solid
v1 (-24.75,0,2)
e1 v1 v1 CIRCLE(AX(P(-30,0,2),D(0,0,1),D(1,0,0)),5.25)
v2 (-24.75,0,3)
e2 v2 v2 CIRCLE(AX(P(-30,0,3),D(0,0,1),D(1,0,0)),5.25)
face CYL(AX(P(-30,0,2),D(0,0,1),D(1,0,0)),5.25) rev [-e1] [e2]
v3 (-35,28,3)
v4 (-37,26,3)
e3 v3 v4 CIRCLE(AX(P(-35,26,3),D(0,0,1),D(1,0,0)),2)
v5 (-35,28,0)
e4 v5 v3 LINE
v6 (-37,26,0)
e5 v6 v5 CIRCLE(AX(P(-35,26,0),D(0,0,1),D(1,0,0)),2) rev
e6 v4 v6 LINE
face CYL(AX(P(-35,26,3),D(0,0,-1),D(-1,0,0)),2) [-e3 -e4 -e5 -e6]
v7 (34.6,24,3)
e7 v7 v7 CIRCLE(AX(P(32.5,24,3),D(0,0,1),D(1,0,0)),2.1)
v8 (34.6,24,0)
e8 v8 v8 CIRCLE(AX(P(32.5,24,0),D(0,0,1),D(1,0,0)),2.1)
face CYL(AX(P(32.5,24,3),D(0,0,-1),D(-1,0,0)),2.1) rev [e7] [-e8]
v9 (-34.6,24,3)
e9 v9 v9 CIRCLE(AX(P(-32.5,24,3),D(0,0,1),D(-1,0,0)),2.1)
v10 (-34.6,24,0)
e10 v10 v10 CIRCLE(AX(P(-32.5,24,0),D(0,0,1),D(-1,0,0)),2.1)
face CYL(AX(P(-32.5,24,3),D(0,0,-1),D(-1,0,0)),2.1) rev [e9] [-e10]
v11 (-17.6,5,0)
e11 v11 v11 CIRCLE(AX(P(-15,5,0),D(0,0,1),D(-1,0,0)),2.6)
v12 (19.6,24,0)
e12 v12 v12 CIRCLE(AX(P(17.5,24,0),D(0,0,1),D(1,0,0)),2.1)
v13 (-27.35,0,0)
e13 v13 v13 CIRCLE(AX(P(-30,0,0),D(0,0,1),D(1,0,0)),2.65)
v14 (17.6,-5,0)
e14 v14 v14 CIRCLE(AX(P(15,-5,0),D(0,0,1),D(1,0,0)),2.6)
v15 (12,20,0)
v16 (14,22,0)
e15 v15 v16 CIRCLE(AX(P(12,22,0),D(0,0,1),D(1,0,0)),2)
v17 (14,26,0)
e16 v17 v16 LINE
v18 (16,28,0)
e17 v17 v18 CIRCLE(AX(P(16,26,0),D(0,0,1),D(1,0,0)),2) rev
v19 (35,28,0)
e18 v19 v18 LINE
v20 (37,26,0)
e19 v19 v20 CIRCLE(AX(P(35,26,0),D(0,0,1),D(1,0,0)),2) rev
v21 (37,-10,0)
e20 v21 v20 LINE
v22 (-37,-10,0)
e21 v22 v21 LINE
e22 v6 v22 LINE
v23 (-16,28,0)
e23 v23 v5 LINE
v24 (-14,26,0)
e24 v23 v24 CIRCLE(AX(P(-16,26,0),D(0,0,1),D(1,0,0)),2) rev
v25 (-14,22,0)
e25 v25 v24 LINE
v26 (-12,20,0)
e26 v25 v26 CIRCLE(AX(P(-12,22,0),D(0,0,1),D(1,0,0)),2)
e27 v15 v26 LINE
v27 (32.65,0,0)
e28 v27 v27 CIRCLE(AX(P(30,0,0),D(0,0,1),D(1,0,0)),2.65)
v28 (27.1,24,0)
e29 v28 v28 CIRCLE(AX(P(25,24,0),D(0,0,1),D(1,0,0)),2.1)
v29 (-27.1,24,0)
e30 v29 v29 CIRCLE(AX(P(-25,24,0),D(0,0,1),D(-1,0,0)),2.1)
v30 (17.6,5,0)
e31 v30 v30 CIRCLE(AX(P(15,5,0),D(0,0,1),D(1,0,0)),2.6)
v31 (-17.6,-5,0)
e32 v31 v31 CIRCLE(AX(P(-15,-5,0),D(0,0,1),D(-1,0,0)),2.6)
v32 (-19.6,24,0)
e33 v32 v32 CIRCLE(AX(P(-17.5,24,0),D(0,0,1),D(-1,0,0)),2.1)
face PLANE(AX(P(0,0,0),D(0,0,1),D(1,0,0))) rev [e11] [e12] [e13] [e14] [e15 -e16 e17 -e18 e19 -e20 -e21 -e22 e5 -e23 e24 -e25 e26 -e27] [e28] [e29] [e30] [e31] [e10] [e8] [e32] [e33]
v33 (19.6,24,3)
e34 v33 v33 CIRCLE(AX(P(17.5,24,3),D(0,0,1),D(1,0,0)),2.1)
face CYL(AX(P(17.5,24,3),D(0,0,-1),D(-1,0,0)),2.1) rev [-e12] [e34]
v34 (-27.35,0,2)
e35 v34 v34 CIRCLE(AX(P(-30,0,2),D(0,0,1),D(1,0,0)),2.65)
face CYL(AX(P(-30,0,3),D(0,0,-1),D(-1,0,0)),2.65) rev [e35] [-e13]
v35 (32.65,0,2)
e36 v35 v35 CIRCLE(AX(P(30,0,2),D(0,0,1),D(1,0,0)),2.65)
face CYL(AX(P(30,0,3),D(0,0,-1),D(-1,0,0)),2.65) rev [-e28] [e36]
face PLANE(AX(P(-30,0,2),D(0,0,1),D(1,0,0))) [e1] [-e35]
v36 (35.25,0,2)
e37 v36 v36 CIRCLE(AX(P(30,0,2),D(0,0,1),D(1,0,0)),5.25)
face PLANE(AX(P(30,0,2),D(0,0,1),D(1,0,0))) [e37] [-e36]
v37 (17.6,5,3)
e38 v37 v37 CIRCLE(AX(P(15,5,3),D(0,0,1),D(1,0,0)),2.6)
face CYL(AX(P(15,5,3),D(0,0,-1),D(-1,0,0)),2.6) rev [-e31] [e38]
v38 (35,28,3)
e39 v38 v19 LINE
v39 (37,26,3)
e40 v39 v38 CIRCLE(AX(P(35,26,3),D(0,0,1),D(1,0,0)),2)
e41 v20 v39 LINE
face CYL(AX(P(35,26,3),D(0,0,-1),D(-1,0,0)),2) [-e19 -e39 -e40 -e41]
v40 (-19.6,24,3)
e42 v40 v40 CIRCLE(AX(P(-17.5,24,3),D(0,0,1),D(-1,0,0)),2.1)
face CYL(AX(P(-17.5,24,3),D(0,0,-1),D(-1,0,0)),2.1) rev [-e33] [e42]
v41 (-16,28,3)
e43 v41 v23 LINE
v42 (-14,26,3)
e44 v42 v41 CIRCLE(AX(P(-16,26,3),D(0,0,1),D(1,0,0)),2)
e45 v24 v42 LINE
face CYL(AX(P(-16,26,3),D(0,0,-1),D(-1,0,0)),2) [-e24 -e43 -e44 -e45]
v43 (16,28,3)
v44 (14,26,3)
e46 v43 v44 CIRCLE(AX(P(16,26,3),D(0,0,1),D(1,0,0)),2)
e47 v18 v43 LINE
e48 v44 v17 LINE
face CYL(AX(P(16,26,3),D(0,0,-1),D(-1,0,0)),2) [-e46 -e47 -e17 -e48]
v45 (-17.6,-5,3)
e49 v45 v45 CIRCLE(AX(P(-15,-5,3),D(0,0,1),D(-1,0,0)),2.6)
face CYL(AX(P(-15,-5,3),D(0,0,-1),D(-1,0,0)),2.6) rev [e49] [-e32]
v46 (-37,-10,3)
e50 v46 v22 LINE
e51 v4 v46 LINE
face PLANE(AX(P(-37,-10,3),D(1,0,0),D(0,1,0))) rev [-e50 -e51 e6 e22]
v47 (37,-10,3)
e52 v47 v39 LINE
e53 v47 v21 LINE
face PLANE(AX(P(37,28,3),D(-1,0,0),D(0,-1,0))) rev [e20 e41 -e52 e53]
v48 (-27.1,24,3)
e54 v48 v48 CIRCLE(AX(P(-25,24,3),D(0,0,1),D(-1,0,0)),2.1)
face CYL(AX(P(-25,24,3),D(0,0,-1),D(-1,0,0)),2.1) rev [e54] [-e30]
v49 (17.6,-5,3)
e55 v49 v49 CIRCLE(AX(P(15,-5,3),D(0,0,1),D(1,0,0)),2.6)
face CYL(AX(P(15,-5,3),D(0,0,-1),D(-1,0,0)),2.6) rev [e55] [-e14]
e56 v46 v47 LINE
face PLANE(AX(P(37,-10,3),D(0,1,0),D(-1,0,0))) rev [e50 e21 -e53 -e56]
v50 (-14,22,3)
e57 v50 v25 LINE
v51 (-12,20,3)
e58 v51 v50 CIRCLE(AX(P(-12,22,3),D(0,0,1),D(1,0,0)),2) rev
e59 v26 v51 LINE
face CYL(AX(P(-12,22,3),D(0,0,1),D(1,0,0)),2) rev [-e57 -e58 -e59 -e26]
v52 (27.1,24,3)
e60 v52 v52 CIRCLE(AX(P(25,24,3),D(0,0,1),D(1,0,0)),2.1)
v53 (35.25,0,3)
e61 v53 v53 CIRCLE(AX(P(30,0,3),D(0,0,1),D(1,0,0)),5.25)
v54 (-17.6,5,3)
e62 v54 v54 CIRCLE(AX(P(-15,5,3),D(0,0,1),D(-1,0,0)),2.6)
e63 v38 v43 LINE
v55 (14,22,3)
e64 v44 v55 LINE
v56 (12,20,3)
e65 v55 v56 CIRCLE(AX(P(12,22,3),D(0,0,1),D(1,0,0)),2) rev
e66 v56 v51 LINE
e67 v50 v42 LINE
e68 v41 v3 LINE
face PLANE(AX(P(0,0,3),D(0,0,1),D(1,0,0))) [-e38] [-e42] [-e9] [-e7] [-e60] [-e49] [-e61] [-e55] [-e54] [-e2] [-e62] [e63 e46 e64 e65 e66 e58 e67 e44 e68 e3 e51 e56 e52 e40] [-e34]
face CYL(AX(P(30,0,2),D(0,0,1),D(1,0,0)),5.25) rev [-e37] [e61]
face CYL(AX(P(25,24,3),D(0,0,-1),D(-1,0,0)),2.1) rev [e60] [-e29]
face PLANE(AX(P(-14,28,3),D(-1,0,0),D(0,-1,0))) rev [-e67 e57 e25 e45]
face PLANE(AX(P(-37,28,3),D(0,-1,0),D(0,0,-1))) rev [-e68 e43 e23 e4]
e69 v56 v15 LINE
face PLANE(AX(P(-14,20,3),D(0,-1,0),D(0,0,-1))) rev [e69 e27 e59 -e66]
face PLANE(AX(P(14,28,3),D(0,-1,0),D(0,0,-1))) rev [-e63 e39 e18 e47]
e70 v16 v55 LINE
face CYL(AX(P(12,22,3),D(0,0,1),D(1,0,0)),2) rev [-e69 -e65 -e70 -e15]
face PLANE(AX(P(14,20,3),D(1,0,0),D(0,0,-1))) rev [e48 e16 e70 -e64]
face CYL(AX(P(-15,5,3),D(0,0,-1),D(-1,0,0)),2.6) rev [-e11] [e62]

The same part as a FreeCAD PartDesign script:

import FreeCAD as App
import Part
import Sketcher


def edges_at(feature, points):
    """Names of the edges that pass closest to the given points."""
    edges = feature.Shape.Edges
    near = lambda p: min(range(len(edges)), key=lambda i: edges[i].distToShape(Part.Vertex(*p))[0])
    return sorted({f"Edge{near(p) + 1}" for p in points})


def add_polygon(sketch, points):
    """Adds a closed chain of lines whose ends are joined by coincident constraints."""
    first, n = sketch.GeometryCount, len(points)
    for a, b in zip(points, points[1:] + points[:1]):
        sketch.addGeometry(Part.LineSegment(App.Vector(*a, 0), App.Vector(*b, 0)), False)
    for i in range(n):
        sketch.addConstraint(Sketcher.Constraint("Coincident", first + i, 2, first + (i + 1) % n, 1))

doc = App.newDocument("Part")
body = doc.addObject("PartDesign::Body", "Body")

# Sketch on XY plane
sketch1 = body.newObject("Sketcher::SketchObject", "Sketch")
sketch1.AttachmentSupport = (doc.getObject("XY_Plane"), [""])
sketch1.MapMode = "FlatFace"
add_polygon(sketch1, [(14, 28), (14, 20), (-14, 20), (-14, 28), (-37, 28), (-37, -10), (37, -10), (37, 28)])  # lines 0-7
sketch1.addGeometry(Part.Circle(App.Vector(30, 0, 0), App.Vector(0, 0, 1), 2.6), False)  # 8
sketch1.addGeometry(Part.Circle(App.Vector(15, -5, 0), App.Vector(0, 0, 1), 2.6), False)  # 9
sketch1.addGeometry(Part.Circle(App.Vector(15, 5, 0), App.Vector(0, 0, 1), 2.6), False)  # 10
sketch1.addGeometry(Part.Circle(App.Vector(-15, -5, 0), App.Vector(0, 0, 1), 2.6), False)  # 11
sketch1.addGeometry(Part.Circle(App.Vector(-30, 0, 0), App.Vector(0, 0, 1), 2.6), False)  # 12
sketch1.addGeometry(Part.Circle(App.Vector(-15, 5, 0), App.Vector(0, 0, 1), 2.6), False)  # 13
sketch1.addGeometry(Part.Circle(App.Vector(32.5, 24, 0), App.Vector(0, 0, 1), 2.1), False)  # 14
sketch1.addGeometry(Part.Circle(App.Vector(25, 24, 0), App.Vector(0, 0, 1), 2.1), False)  # 15
sketch1.addGeometry(Part.Circle(App.Vector(17.5, 24, 0), App.Vector(0, 0, 1), 2.1), False)  # 16
sketch1.addGeometry(Part.Circle(App.Vector(-17.5, 24, 0), App.Vector(0, 0, 1), 2.1), False)  # 17
sketch1.addGeometry(Part.Circle(App.Vector(-25, 24, 0), App.Vector(0, 0, 1), 2.1), False)  # 18
sketch1.addGeometry(Part.Circle(App.Vector(-32.5, 24, 0), App.Vector(0, 0, 1), 2.1), False)  # 19
sketch1.addConstraint([
    Sketcher.Constraint("Vertical", 0),
    Sketcher.Constraint("Horizontal", 1),
    Sketcher.Constraint("Vertical", 2),
    Sketcher.Constraint("Horizontal", 3),
    Sketcher.Constraint("Vertical", 4),
    Sketcher.Constraint("Horizontal", 5),
    Sketcher.Constraint("Vertical", 6),
    Sketcher.Constraint("Horizontal", 7),
    Sketcher.Constraint("Equal", 9, 10),
    Sketcher.Constraint("Equal", 10, 11),
    Sketcher.Constraint("Equal", 8, 12),
    Sketcher.Constraint("Equal", 11, 13),
    Sketcher.Constraint("Equal", 14, 15),
    Sketcher.Constraint("Equal", 15, 16),
    Sketcher.Constraint("Equal", 16, 17),
    Sketcher.Constraint("Equal", 17, 18),
    Sketcher.Constraint("Equal", 18, 19),
    Sketcher.Constraint("Symmetric", 10, 3, 11, 3, -1, 1),
    Sketcher.Constraint("Symmetric", 8, 3, 12, 3, -1, 1),
    Sketcher.Constraint("Symmetric", 9, 3, 13, 3, -1, 1),
    Sketcher.Constraint("Symmetric", 9, 3, 11, 3, -2),
    Sketcher.Constraint("Symmetric", 16, 3, 17, 3, -2),
    Sketcher.Constraint("Symmetric", 15, 3, 18, 3, -2),
    Sketcher.Constraint("Symmetric", 14, 3, 19, 3, -2),
    Sketcher.Constraint("Symmetric", 3, 2, 6, 2, -2),
    Sketcher.Constraint("PointOnObject", 8, 3, -1),
    Sketcher.Constraint("Horizontal", 14, 3, 15, 3),
    Sketcher.Constraint("Horizontal", 15, 3, 16, 3),
    Sketcher.Constraint("Equal", 3, 7),
    Sketcher.Constraint("Diameter", 8, 5.3),
    Sketcher.Constraint("Diameter", 9, 5.2),
    Sketcher.Constraint("Diameter", 14, 4.2),
    Sketcher.Constraint("DistanceX", 1, 2, 1, 1, 28.0),
    Sketcher.Constraint("DistanceX", 3, 2, 3, 1, 23.0),
    Sketcher.Constraint("DistanceY", 0, 2, 0, 1, 8.0),
    Sketcher.Constraint("DistanceY", 4, 2, 4, 1, 38.0),
    Sketcher.Constraint("DistanceX", -1, 1, 8, 3, 30.0),
    Sketcher.Constraint("DistanceX", -1, 1, 9, 3, 15.0),
    Sketcher.Constraint("DistanceY", 9, 3, -1, 1, 5.0),
    Sketcher.Constraint("DistanceY", -1, 1, 14, 3, 24.0),
    Sketcher.Constraint("DistanceX", -1, 1, 15, 3, 25.0),
    Sketcher.Constraint("DistanceY", -1, 1, 0, 2, 20.0),
    Sketcher.Constraint("DistanceX", 16, 3, 14, 3, 15.0),
    Sketcher.Constraint("DistanceX", 17, 3, 16, 3, 35.0),
])
pad1 = body.newObject("PartDesign::Pad", "Pad")
pad1.Profile = sketch1
pad1.Length = 3
doc.recompute()

fillet = body.newObject("PartDesign::Fillet", "Fillet")
fillet.Base = (pad1, edges_at(pad1, [
    (14, 20, 1.5),
    (14, 28, 1.5),
    (37, 28, 1.5),
    (-37, 28, 1.5),
    (-14, 28, 1.5),
    (-14, 20, 1.5),
]))
fillet.Radius = 2

# Sketch on XY plane
sketch2 = body.newObject("Sketcher::SketchObject", "Sketch001")
sketch2.AttachmentSupport = (doc.getObject("XY_Plane"), [""])
sketch2.MapMode = "FlatFace"
sketch2.AttachmentOffset = App.Placement(App.Vector(0, 0, 3), App.Rotation())
sketch2.addGeometry([
    Part.Circle(App.Vector(30, 0, 0), App.Vector(0, 0, 1), 5),
    Part.Circle(App.Vector(-30, 0, 0), App.Vector(0, 0, 1), 5),
], False)
sketch2.addConstraint([
    Sketcher.Constraint("Equal", 0, 1),
    Sketcher.Constraint("Symmetric", 0, 3, 1, 3, -1, 1),
    Sketcher.Constraint("PointOnObject", 0, 3, -1),
    Sketcher.Constraint("Diameter", 0, 10.5),
    Sketcher.Constraint("DistanceX", -1, 1, 0, 3, 30.0),
])
pocket1 = body.newObject("PartDesign::Pocket", "Pocket")
pocket1.Profile = sketch2
pocket1.Length = 1

doc.recompute()
